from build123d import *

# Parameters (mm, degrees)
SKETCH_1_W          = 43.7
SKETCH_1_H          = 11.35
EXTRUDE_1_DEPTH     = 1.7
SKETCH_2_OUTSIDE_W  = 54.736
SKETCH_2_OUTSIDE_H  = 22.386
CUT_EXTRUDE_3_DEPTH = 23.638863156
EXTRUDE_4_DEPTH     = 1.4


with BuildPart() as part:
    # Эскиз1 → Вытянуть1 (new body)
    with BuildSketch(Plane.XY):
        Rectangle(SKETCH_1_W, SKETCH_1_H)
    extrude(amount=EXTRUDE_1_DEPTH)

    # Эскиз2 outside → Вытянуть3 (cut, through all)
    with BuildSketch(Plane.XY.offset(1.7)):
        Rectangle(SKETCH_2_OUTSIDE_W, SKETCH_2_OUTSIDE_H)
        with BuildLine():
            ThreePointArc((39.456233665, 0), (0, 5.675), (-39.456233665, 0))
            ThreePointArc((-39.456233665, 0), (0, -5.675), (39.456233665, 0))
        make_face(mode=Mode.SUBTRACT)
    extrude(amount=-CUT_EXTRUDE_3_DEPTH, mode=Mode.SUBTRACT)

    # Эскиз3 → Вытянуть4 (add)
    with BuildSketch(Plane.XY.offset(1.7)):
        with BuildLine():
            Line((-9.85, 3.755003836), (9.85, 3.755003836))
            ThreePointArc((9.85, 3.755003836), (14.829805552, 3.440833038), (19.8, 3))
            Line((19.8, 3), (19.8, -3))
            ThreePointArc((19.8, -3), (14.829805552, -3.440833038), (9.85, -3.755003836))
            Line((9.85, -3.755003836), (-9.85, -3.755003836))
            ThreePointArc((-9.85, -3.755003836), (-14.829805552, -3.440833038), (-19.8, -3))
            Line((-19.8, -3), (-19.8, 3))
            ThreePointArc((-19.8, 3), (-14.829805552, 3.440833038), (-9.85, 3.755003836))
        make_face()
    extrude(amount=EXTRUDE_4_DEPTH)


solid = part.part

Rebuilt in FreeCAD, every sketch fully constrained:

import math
import FreeCAD as App
import Part
import Sketcher
from FreeCAD import Vector
Q = App.Units.Quantity

doc = App.newDocument("Part")
params = doc.addObject("Spreadsheet::Sheet", "Params")
for row, (alias, value) in enumerate([
    ("sketch1_width", "43.7 mm"),
    ("sketch1_height", "11.35 mm"),
    ("pad1_length", "1.7 mm"),
    ("sketch2_radius", "140 mm"),
    ("sketch3_radius", "195.999999 mm"),
    ("sketch3_height", "6 mm"),
    ("sketch3_width", "19.7 mm"),
    ("pad2_length", "1.4 mm"),
], start=1):
    params.set(f"A{row}", alias)
    params.set(f"B{row}", "=" + value)
    params.setAlias(f"B{row}", alias)

body = doc.addObject("PartDesign::Body", "Body")

# Sketch on XY plane
sketch1 = doc.addObject("Sketcher::SketchObject", "Sketch")
body.addObject(sketch1)
sketch1.AttachmentSupport = (doc.XY_Plane, [""])
sketch1.MapMode = "FlatFace"
sketch1.addGeometry([
    Part.LineSegment(Vector(-22, 6, 0), Vector(-22, -6, 0)),
    Part.LineSegment(Vector(-22, -6, 0), Vector(22, -6, 0)),
    Part.LineSegment(Vector(22, -6, 0), Vector(22, 6, 0)),
    Part.LineSegment(Vector(22, 6, 0), Vector(-22, 6, 0)),
], False)
sketch1.addConstraint([
    Sketcher.Constraint("Coincident", 0, 2, 1, 1),
    Sketcher.Constraint("Coincident", 1, 2, 2, 1),
    Sketcher.Constraint("Coincident", 2, 2, 3, 1),
    Sketcher.Constraint("Coincident", 3, 2, 0, 1),
    Sketcher.Constraint("Vertical", 0),
    Sketcher.Constraint("Horizontal", 1),
    Sketcher.Constraint("Vertical", 2),
    Sketcher.Constraint("Horizontal", 3),
    Sketcher.Constraint("Symmetric", 0, 2, 2, 2, -1, 1),
    Sketcher.Constraint("DistanceX", 1, 1, 1, 2, Q("43.7 mm")),
    Sketcher.Constraint("DistanceY", 0, 2, 0, 1, Q("11.35 mm")),
])
sketch1.setExpression("Constraints[9]", "Params.sketch1_width")
sketch1.setExpression("Constraints[10]", "Params.sketch1_height")
pad1 = doc.addObject("PartDesign::Pad", "Pad")
body.addObject(pad1)
pad1.Profile = sketch1
pad1.setExpression("Length", "Params.pad1_length")

# Sketch on XY plane
sketch2 = doc.addObject("Sketcher::SketchObject", "Sketch001")
body.addObject(sketch2)
sketch2.AttachmentSupport = (doc.XY_Plane, [""])
sketch2.MapMode = "FlatFace"
sketch2.AttachmentOffset = App.Placement(Vector(0, 0, 1.7), App.Rotation())
sketch2.addGeometry([
    Part.LineSegment(Vector(-27, -3, 0), Vector(-27, -11, 0)),  # 0
    Part.LineSegment(Vector(-27, -11, 0), Vector(27, -11, 0)),  # 1
    Part.LineSegment(Vector(27, -11, 0), Vector(27, -3, 0)),  # 2
    Part.ArcOfCircle(Part.Circle(Vector(0, 134, 0), Vector(0, 0, 1), 140), math.radians(-101), math.radians(-79)),  # 3
    Part.LineSegment(Vector(-27, 11, 0), Vector(-27, 3, 0)),  # 4
    Part.ArcOfCircle(Part.Circle(Vector(0, -134, 0), Vector(0, 0, 1), 140), math.radians(79), math.radians(101)),  # 5
    Part.LineSegment(Vector(27, 3, 0), Vector(27, 11, 0)),  # 6
    Part.LineSegment(Vector(27, 11, 0), Vector(-27, 11, 0)),  # 7
], False)
sketch2.addConstraint([
    Sketcher.Constraint("Coincident", 0, 2, 1, 1),
    Sketcher.Constraint("Coincident", 1, 2, 2, 1),
    Sketcher.Constraint("Coincident", 2, 2, 3, 2),
    Sketcher.Constraint("Coincident", 3, 1, 0, 1),
    Sketcher.Constraint("Coincident", 4, 2, 5, 2),
    Sketcher.Constraint("Coincident", 5, 1, 6, 1),
    Sketcher.Constraint("Coincident", 6, 2, 7, 1),
    Sketcher.Constraint("Coincident", 7, 2, 4, 1),
    Sketcher.Constraint("Vertical", 0),
    Sketcher.Constraint("Horizontal", 1),
    Sketcher.Constraint("Vertical", 2),
    Sketcher.Constraint("Vertical", 4),
    Sketcher.Constraint("Vertical", 6),
    Sketcher.Constraint("Horizontal", 7),
    Sketcher.Constraint("Equal", 3, 5),
    Sketcher.Constraint("Symmetric", 3, 3, 5, 3, -1, 1),
    Sketcher.Constraint("Symmetric", 0, 2, 6, 2, -1, 1),
    Sketcher.Constraint("Symmetric", 2, 2, 3, 1, -2),
    Sketcher.Constraint("Horizontal", 4, 2, 5, 1),
    Sketcher.Constraint("Radius", 3, Q("140 mm")),
    Sketcher.Constraint("DistanceX", 1, 1, 1, 2, Q("54.736 mm")),
    Sketcher.Constraint("DistanceY", 5, 3, 3, 3, Q("268.65 mm")),
    Sketcher.Constraint("DistanceY", 0, 2, -1, 1, Q("11.193 mm")),
])
sketch2.setExpression("Constraints[19]", "Params.sketch2_radius")
pocket1 = doc.addObject("PartDesign::Pocket", "Pocket")
body.addObject(pocket1)
pocket1.Profile = sketch2
pocket1.Type = "ThroughAll"

# Sketch on XY plane
sketch3 = doc.addObject("Sketcher::SketchObject", "Sketch002")
body.addObject(sketch3)
sketch3.AttachmentSupport = (doc.XY_Plane, [""])
sketch3.MapMode = "FlatFace"
sketch3.AttachmentOffset = App.Placement(Vector(0, 0, 1.7), App.Rotation())
sketch3.addGeometry([
    Part.LineSegment(Vector(10, 4, 0), Vector(-10, 4, 0)),  # 0
    Part.ArcOfCircle(Part.Circle(Vector(0, -192, 0), Vector(0, 0, 1), 196), math.radians(92.88), math.radians(95.8)),  # 1
    Part.LineSegment(Vector(-20, 3, 0), Vector(-20, -3, 0)),  # 2
    Part.ArcOfCircle(Part.Circle(Vector(0, 192, 0), Vector(0, 0, 1), 196), math.radians(-95.8), math.radians(-92.88)),  # 3
    Part.LineSegment(Vector(-10, -4, 0), Vector(10, -4, 0)),  # 4
    Part.ArcOfCircle(Part.Circle(Vector(0, 192, 0), Vector(0, 0, 1), 196), math.radians(-87.12), math.radians(-84.2)),  # 5
    Part.LineSegment(Vector(20, -3, 0), Vector(20, 3, 0)),  # 6
    Part.ArcOfCircle(Part.Circle(Vector(0, -192, 0), Vector(0, 0, 1), 196), math.radians(84.2), math.radians(87.12)),  # 7
], False)
sketch3.addConstraint([
    Sketcher.Constraint("Coincident", 0, 2, 1, 1),
    Sketcher.Constraint("Coincident", 1, 2, 2, 1),
    Sketcher.Constraint("Coincident", 2, 2, 3, 1),
    Sketcher.Constraint("Coincident", 3, 2, 4, 1),
    Sketcher.Constraint("Coincident", 4, 2, 5, 1),
    Sketcher.Constraint("Coincident", 5, 2, 6, 1),
    Sketcher.Constraint("Coincident", 6, 2, 7, 1),
    Sketcher.Constraint("Coincident", 7, 2, 0, 1),
    Sketcher.Constraint("Horizontal", 0),
    Sketcher.Constraint("Vertical", 2),
    Sketcher.Constraint("Horizontal", 4),
    Sketcher.Constraint("Vertical", 6),
    Sketcher.Constraint("Coincident", 5, 3, 3, 3),
    Sketcher.Constraint("Coincident", 7, 3, 1, 3),
    Sketcher.Constraint("Equal", 1, 3),
    Sketcher.Constraint("Equal", 3, 5),
    Sketcher.Constraint("Equal", 5, 7),
    Sketcher.Constraint("Symmetric", 1, 3, 3, 3, -1, 1),
    Sketcher.Constraint("Symmetric", 2, 2, 5, 2, -2),
    Sketcher.Constraint("Vertical", 0, 2, 3, 2),
    Sketcher.Constraint("Radius", 1, Q("195.999999 mm")),
    Sketcher.Constraint("DistanceY", 2, 2, 2, 1, Q("6 mm")),
    Sketcher.Constraint("DistanceX", 0, 2, 0, 1, Q("19.7 mm")),
    Sketcher.Constraint("DistanceX", 1, 2, -1, 1, Q("19.8 mm")),
])
sketch3.setExpression("Constraints[20]", "Params.sketch3_radius")
sketch3.setExpression("Constraints[21]", "Params.sketch3_height")
sketch3.setExpression("Constraints[22]", "Params.sketch3_width")
pad2 = doc.addObject("PartDesign::Pad", "Pad001")
body.addObject(pad2)
pad2.Profile = sketch3
pad2.setExpression("Length", "Params.pad2_length")

doc.recompute()
